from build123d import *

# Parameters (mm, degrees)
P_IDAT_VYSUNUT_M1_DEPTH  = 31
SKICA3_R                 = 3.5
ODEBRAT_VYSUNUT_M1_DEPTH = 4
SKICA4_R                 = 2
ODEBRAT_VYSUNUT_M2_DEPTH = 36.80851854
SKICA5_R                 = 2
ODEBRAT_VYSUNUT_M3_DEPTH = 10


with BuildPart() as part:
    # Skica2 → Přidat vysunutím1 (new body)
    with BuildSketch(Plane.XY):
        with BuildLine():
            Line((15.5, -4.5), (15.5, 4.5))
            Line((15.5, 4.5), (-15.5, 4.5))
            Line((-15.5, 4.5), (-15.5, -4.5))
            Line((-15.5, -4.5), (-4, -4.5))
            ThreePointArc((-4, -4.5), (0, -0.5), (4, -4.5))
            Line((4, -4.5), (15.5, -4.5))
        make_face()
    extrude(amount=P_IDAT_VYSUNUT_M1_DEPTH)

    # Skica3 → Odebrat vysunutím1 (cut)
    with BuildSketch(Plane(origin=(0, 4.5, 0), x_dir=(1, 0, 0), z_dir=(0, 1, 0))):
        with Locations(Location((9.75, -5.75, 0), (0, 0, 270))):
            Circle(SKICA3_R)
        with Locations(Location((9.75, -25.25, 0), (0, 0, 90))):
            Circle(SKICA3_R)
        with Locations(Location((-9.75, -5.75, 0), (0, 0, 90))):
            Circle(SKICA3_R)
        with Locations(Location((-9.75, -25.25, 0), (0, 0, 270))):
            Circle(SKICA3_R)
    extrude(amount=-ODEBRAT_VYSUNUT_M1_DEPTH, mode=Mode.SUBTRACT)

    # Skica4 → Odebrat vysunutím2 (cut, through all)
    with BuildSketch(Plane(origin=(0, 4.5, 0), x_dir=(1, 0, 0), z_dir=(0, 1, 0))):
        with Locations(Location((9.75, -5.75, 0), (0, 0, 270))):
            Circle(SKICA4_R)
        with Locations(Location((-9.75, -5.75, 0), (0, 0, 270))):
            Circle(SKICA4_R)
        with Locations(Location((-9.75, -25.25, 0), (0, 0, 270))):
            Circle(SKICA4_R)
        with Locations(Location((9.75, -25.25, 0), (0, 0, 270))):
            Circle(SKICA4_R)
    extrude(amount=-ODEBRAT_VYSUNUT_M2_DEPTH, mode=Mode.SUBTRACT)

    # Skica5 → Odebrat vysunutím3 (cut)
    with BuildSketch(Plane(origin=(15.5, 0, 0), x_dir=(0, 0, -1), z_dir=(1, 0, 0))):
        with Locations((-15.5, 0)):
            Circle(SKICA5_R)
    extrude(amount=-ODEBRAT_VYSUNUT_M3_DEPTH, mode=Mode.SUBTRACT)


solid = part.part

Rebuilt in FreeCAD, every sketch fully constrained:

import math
import FreeCAD as App
import Part
import Sketcher
from FreeCAD import Vector

doc = App.newDocument("Part")
params = doc.addObject("Spreadsheet::Sheet", "Params")
for row, (alias, value) in enumerate([
    ("sketch1_radius", "4 mm"),
    ("sketch1_width", "31 mm"),
    ("sketch1_height", "9 mm"),
    ("pad1_length", "31 mm"),
    ("sketch2_diameter", "7 mm"),
    ("pocket1_length", "4 mm"),
    ("sketch3_diameter", "4 mm"),
    ("sketch4_diameter", "4 mm"),
    ("pocket3_length", "10 mm"),
], start=1):
    params.set(f"A{row}", alias)
    params.set(f"B{row}", "=" + value)
    params.setAlias(f"B{row}", alias)

body = doc.addObject("PartDesign::Body", "Body")

# Sketch on XY plane
sketch1 = body.newObject("Sketcher::SketchObject", "Sketch")
sketch1.AttachmentSupport = (doc.getObject("XY_Plane"), [""])
sketch1.MapMode = "FlatFace"
sketch1.addGeometry([
    Part.LineSegment(Vector(15.5, -4.5, 0), Vector(15.5, 4.5, 0)),  # 0
    Part.LineSegment(Vector(15.5, 4.5, 0), Vector(-15.5, 4.5, 0)),  # 1
    Part.LineSegment(Vector(-15.5, 4.5, 0), Vector(-15.5, -4.5, 0)),  # 2
    Part.LineSegment(Vector(-15.5, -4.5, 0), Vector(-4, -4.5, 0)),  # 3
    Part.ArcOfCircle(Part.Circle(Vector(0, -4.5, 0), Vector(0, 0, 1), 4), math.radians(0), math.radians(180)),  # 4
    Part.LineSegment(Vector(4, -4.5, 0), Vector(15.5, -4.5, 0)),  # 5
], False)
sketch1.addConstraint([
    Sketcher.Constraint("Coincident", 0, 2, 1, 1),
    Sketcher.Constraint("Coincident", 1, 2, 2, 1),
    Sketcher.Constraint("Coincident", 2, 2, 3, 1),
    Sketcher.Constraint("Coincident", 3, 2, 4, 2),
    Sketcher.Constraint("Coincident", 4, 1, 5, 1),
    Sketcher.Constraint("Coincident", 5, 2, 0, 1),
    Sketcher.Constraint("Vertical", 0),
    Sketcher.Constraint("Horizontal", 1),
    Sketcher.Constraint("Vertical", 2),
    Sketcher.Constraint("Horizontal", 3),
    Sketcher.Constraint("Horizontal", 5),
    Sketcher.Constraint("Symmetric", 0, 2, 2, 2, -1, 1),
    Sketcher.Constraint("Symmetric", 3, 2, 4, 1, -2),
    Sketcher.Constraint("Horizontal", 4, 3, 2, 2),
    Sketcher.Constraint("Radius", 4, 4.0),
    Sketcher.Constraint("DistanceX", 1, 2, 1, 1, 31.0),
    Sketcher.Constraint("DistanceY", 0, 1, 0, 2, 9.0),
])
sketch1.setExpression("Constraints[14]", "Params.sketch1_radius")
sketch1.setExpression("Constraints[15]", "Params.sketch1_width")
sketch1.setExpression("Constraints[16]", "Params.sketch1_height")
pad1 = body.newObject("PartDesign::Pad", "Pad")
pad1.Profile = sketch1
pad1.setExpression("Length", "Params.pad1_length")

# Sketch on XZ plane
sketch2 = body.newObject("Sketcher::SketchObject", "Sketch001")
sketch2.AttachmentSupport = (doc.getObject("XZ_Plane"), [""])
sketch2.MapMode = "FlatFace"
sketch2.AttachmentOffset = App.Placement(Vector(0, 0, -4.5), App.Rotation())
sketch2.addGeometry([
    Part.Circle(Vector(9.8, 5.8, 0), Vector(0, 0, 1), 3.5),
    Part.Circle(Vector(9.8, 25.2, 0), Vector(0, 0, 1), 3.5),
    Part.Circle(Vector(-9.8, 5.8, 0), Vector(0, 0, 1), 3.5),
    Part.Circle(Vector(-9.8, 25.2, 0), Vector(0, 0, 1), 3.5),
], False)
sketch2.addConstraint([
    Sketcher.Constraint("Equal", 0, 1),
    Sketcher.Constraint("Equal", 1, 2),
    Sketcher.Constraint("Equal", 2, 3),
    Sketcher.Constraint("Symmetric", 0, 3, 2, 3, -2),
    Sketcher.Constraint("Symmetric", 1, 3, 3, 3, -2),
    Sketcher.Constraint("Vertical", 0, 3, 1, 3),
    Sketcher.Constraint("Diameter", 0, 7.0),
    Sketcher.Constraint("DistanceY", 0, 3, 1, 3, 19.5),
    Sketcher.Constraint("DistanceX", 2, 3, 0, 3, 19.5),
    Sketcher.Constraint("DistanceY", -1, 1, 0, 3, 5.75),
])
sketch2.setExpression("Constraints[6]", "Params.sketch2_diameter")
pocket1 = body.newObject("PartDesign::Pocket", "Pocket")
pocket1.Profile = sketch2
pocket1.setExpression("Length", "Params.pocket1_length")
pocket1.Reversed = True

# Sketch on XZ plane
sketch3 = body.newObject("Sketcher::SketchObject", "Sketch002")
sketch3.AttachmentSupport = (doc.getObject("XZ_Plane"), [""])
sketch3.MapMode = "FlatFace"
sketch3.AttachmentOffset = App.Placement(Vector(0, 0, -4.5), App.Rotation())
sketch3.addGeometry([
    Part.Circle(Vector(9.8, 5.8, 0), Vector(0, 0, 1), 2),
    Part.Circle(Vector(-9.8, 5.8, 0), Vector(0, 0, 1), 2),
    Part.Circle(Vector(-9.8, 25.2, 0), Vector(0, 0, 1), 2),
    Part.Circle(Vector(9.8, 25.2, 0), Vector(0, 0, 1), 2),
], False)
sketch3.addConstraint([
    Sketcher.Constraint("Equal", 0, 1),
    Sketcher.Constraint("Equal", 1, 2),
    Sketcher.Constraint("Equal", 2, 3),
    Sketcher.Constraint("Symmetric", 0, 3, 1, 3, -2),
    Sketcher.Constraint("Symmetric", 2, 3, 3, 3, -2),
    Sketcher.Constraint("Vertical", 1, 3, 2, 3),
    Sketcher.Constraint("Diameter", 0, 4.0),
    Sketcher.Constraint("DistanceX", 1, 3, 0, 3, 19.5),
    Sketcher.Constraint("DistanceY", 1, 3, 2, 3, 19.5),
    Sketcher.Constraint("DistanceY", -1, 1, 0, 3, 5.75),
])
sketch3.setExpression("Constraints[6]", "Params.sketch3_diameter")
pocket2 = body.newObject("PartDesign::Pocket", "Pocket001")
pocket2.Profile = sketch3
pocket2.Type = "ThroughAll"
pocket2.Reversed = True

# Sketch on YZ plane
sketch4 = body.newObject("Sketcher::SketchObject", "Sketch003")
sketch4.AttachmentSupport = (doc.getObject("YZ_Plane"), [""])
sketch4.MapMode = "FlatFace"
sketch4.AttachmentOffset = App.Placement(Vector(0, 0, 15.5), App.Rotation())
sketch4.addGeometry(Part.Circle(Vector(0, 15.5, 0), Vector(0, 0, 1), 2), False)
sketch4.addConstraint([
    Sketcher.Constraint("PointOnObject", 0, 3, -2),
    Sketcher.Constraint("Diameter", 0, 4.0),
    Sketcher.Constraint("DistanceY", -1, 1, 0, 3, 15.5),
])
sketch4.setExpression("Constraints[1]", "Params.sketch4_diameter")
pocket3 = body.newObject("PartDesign::Pocket", "Pocket002")
pocket3.Profile = sketch4
pocket3.setExpression("Length", "Params.pocket3_length")

doc.recompute()
